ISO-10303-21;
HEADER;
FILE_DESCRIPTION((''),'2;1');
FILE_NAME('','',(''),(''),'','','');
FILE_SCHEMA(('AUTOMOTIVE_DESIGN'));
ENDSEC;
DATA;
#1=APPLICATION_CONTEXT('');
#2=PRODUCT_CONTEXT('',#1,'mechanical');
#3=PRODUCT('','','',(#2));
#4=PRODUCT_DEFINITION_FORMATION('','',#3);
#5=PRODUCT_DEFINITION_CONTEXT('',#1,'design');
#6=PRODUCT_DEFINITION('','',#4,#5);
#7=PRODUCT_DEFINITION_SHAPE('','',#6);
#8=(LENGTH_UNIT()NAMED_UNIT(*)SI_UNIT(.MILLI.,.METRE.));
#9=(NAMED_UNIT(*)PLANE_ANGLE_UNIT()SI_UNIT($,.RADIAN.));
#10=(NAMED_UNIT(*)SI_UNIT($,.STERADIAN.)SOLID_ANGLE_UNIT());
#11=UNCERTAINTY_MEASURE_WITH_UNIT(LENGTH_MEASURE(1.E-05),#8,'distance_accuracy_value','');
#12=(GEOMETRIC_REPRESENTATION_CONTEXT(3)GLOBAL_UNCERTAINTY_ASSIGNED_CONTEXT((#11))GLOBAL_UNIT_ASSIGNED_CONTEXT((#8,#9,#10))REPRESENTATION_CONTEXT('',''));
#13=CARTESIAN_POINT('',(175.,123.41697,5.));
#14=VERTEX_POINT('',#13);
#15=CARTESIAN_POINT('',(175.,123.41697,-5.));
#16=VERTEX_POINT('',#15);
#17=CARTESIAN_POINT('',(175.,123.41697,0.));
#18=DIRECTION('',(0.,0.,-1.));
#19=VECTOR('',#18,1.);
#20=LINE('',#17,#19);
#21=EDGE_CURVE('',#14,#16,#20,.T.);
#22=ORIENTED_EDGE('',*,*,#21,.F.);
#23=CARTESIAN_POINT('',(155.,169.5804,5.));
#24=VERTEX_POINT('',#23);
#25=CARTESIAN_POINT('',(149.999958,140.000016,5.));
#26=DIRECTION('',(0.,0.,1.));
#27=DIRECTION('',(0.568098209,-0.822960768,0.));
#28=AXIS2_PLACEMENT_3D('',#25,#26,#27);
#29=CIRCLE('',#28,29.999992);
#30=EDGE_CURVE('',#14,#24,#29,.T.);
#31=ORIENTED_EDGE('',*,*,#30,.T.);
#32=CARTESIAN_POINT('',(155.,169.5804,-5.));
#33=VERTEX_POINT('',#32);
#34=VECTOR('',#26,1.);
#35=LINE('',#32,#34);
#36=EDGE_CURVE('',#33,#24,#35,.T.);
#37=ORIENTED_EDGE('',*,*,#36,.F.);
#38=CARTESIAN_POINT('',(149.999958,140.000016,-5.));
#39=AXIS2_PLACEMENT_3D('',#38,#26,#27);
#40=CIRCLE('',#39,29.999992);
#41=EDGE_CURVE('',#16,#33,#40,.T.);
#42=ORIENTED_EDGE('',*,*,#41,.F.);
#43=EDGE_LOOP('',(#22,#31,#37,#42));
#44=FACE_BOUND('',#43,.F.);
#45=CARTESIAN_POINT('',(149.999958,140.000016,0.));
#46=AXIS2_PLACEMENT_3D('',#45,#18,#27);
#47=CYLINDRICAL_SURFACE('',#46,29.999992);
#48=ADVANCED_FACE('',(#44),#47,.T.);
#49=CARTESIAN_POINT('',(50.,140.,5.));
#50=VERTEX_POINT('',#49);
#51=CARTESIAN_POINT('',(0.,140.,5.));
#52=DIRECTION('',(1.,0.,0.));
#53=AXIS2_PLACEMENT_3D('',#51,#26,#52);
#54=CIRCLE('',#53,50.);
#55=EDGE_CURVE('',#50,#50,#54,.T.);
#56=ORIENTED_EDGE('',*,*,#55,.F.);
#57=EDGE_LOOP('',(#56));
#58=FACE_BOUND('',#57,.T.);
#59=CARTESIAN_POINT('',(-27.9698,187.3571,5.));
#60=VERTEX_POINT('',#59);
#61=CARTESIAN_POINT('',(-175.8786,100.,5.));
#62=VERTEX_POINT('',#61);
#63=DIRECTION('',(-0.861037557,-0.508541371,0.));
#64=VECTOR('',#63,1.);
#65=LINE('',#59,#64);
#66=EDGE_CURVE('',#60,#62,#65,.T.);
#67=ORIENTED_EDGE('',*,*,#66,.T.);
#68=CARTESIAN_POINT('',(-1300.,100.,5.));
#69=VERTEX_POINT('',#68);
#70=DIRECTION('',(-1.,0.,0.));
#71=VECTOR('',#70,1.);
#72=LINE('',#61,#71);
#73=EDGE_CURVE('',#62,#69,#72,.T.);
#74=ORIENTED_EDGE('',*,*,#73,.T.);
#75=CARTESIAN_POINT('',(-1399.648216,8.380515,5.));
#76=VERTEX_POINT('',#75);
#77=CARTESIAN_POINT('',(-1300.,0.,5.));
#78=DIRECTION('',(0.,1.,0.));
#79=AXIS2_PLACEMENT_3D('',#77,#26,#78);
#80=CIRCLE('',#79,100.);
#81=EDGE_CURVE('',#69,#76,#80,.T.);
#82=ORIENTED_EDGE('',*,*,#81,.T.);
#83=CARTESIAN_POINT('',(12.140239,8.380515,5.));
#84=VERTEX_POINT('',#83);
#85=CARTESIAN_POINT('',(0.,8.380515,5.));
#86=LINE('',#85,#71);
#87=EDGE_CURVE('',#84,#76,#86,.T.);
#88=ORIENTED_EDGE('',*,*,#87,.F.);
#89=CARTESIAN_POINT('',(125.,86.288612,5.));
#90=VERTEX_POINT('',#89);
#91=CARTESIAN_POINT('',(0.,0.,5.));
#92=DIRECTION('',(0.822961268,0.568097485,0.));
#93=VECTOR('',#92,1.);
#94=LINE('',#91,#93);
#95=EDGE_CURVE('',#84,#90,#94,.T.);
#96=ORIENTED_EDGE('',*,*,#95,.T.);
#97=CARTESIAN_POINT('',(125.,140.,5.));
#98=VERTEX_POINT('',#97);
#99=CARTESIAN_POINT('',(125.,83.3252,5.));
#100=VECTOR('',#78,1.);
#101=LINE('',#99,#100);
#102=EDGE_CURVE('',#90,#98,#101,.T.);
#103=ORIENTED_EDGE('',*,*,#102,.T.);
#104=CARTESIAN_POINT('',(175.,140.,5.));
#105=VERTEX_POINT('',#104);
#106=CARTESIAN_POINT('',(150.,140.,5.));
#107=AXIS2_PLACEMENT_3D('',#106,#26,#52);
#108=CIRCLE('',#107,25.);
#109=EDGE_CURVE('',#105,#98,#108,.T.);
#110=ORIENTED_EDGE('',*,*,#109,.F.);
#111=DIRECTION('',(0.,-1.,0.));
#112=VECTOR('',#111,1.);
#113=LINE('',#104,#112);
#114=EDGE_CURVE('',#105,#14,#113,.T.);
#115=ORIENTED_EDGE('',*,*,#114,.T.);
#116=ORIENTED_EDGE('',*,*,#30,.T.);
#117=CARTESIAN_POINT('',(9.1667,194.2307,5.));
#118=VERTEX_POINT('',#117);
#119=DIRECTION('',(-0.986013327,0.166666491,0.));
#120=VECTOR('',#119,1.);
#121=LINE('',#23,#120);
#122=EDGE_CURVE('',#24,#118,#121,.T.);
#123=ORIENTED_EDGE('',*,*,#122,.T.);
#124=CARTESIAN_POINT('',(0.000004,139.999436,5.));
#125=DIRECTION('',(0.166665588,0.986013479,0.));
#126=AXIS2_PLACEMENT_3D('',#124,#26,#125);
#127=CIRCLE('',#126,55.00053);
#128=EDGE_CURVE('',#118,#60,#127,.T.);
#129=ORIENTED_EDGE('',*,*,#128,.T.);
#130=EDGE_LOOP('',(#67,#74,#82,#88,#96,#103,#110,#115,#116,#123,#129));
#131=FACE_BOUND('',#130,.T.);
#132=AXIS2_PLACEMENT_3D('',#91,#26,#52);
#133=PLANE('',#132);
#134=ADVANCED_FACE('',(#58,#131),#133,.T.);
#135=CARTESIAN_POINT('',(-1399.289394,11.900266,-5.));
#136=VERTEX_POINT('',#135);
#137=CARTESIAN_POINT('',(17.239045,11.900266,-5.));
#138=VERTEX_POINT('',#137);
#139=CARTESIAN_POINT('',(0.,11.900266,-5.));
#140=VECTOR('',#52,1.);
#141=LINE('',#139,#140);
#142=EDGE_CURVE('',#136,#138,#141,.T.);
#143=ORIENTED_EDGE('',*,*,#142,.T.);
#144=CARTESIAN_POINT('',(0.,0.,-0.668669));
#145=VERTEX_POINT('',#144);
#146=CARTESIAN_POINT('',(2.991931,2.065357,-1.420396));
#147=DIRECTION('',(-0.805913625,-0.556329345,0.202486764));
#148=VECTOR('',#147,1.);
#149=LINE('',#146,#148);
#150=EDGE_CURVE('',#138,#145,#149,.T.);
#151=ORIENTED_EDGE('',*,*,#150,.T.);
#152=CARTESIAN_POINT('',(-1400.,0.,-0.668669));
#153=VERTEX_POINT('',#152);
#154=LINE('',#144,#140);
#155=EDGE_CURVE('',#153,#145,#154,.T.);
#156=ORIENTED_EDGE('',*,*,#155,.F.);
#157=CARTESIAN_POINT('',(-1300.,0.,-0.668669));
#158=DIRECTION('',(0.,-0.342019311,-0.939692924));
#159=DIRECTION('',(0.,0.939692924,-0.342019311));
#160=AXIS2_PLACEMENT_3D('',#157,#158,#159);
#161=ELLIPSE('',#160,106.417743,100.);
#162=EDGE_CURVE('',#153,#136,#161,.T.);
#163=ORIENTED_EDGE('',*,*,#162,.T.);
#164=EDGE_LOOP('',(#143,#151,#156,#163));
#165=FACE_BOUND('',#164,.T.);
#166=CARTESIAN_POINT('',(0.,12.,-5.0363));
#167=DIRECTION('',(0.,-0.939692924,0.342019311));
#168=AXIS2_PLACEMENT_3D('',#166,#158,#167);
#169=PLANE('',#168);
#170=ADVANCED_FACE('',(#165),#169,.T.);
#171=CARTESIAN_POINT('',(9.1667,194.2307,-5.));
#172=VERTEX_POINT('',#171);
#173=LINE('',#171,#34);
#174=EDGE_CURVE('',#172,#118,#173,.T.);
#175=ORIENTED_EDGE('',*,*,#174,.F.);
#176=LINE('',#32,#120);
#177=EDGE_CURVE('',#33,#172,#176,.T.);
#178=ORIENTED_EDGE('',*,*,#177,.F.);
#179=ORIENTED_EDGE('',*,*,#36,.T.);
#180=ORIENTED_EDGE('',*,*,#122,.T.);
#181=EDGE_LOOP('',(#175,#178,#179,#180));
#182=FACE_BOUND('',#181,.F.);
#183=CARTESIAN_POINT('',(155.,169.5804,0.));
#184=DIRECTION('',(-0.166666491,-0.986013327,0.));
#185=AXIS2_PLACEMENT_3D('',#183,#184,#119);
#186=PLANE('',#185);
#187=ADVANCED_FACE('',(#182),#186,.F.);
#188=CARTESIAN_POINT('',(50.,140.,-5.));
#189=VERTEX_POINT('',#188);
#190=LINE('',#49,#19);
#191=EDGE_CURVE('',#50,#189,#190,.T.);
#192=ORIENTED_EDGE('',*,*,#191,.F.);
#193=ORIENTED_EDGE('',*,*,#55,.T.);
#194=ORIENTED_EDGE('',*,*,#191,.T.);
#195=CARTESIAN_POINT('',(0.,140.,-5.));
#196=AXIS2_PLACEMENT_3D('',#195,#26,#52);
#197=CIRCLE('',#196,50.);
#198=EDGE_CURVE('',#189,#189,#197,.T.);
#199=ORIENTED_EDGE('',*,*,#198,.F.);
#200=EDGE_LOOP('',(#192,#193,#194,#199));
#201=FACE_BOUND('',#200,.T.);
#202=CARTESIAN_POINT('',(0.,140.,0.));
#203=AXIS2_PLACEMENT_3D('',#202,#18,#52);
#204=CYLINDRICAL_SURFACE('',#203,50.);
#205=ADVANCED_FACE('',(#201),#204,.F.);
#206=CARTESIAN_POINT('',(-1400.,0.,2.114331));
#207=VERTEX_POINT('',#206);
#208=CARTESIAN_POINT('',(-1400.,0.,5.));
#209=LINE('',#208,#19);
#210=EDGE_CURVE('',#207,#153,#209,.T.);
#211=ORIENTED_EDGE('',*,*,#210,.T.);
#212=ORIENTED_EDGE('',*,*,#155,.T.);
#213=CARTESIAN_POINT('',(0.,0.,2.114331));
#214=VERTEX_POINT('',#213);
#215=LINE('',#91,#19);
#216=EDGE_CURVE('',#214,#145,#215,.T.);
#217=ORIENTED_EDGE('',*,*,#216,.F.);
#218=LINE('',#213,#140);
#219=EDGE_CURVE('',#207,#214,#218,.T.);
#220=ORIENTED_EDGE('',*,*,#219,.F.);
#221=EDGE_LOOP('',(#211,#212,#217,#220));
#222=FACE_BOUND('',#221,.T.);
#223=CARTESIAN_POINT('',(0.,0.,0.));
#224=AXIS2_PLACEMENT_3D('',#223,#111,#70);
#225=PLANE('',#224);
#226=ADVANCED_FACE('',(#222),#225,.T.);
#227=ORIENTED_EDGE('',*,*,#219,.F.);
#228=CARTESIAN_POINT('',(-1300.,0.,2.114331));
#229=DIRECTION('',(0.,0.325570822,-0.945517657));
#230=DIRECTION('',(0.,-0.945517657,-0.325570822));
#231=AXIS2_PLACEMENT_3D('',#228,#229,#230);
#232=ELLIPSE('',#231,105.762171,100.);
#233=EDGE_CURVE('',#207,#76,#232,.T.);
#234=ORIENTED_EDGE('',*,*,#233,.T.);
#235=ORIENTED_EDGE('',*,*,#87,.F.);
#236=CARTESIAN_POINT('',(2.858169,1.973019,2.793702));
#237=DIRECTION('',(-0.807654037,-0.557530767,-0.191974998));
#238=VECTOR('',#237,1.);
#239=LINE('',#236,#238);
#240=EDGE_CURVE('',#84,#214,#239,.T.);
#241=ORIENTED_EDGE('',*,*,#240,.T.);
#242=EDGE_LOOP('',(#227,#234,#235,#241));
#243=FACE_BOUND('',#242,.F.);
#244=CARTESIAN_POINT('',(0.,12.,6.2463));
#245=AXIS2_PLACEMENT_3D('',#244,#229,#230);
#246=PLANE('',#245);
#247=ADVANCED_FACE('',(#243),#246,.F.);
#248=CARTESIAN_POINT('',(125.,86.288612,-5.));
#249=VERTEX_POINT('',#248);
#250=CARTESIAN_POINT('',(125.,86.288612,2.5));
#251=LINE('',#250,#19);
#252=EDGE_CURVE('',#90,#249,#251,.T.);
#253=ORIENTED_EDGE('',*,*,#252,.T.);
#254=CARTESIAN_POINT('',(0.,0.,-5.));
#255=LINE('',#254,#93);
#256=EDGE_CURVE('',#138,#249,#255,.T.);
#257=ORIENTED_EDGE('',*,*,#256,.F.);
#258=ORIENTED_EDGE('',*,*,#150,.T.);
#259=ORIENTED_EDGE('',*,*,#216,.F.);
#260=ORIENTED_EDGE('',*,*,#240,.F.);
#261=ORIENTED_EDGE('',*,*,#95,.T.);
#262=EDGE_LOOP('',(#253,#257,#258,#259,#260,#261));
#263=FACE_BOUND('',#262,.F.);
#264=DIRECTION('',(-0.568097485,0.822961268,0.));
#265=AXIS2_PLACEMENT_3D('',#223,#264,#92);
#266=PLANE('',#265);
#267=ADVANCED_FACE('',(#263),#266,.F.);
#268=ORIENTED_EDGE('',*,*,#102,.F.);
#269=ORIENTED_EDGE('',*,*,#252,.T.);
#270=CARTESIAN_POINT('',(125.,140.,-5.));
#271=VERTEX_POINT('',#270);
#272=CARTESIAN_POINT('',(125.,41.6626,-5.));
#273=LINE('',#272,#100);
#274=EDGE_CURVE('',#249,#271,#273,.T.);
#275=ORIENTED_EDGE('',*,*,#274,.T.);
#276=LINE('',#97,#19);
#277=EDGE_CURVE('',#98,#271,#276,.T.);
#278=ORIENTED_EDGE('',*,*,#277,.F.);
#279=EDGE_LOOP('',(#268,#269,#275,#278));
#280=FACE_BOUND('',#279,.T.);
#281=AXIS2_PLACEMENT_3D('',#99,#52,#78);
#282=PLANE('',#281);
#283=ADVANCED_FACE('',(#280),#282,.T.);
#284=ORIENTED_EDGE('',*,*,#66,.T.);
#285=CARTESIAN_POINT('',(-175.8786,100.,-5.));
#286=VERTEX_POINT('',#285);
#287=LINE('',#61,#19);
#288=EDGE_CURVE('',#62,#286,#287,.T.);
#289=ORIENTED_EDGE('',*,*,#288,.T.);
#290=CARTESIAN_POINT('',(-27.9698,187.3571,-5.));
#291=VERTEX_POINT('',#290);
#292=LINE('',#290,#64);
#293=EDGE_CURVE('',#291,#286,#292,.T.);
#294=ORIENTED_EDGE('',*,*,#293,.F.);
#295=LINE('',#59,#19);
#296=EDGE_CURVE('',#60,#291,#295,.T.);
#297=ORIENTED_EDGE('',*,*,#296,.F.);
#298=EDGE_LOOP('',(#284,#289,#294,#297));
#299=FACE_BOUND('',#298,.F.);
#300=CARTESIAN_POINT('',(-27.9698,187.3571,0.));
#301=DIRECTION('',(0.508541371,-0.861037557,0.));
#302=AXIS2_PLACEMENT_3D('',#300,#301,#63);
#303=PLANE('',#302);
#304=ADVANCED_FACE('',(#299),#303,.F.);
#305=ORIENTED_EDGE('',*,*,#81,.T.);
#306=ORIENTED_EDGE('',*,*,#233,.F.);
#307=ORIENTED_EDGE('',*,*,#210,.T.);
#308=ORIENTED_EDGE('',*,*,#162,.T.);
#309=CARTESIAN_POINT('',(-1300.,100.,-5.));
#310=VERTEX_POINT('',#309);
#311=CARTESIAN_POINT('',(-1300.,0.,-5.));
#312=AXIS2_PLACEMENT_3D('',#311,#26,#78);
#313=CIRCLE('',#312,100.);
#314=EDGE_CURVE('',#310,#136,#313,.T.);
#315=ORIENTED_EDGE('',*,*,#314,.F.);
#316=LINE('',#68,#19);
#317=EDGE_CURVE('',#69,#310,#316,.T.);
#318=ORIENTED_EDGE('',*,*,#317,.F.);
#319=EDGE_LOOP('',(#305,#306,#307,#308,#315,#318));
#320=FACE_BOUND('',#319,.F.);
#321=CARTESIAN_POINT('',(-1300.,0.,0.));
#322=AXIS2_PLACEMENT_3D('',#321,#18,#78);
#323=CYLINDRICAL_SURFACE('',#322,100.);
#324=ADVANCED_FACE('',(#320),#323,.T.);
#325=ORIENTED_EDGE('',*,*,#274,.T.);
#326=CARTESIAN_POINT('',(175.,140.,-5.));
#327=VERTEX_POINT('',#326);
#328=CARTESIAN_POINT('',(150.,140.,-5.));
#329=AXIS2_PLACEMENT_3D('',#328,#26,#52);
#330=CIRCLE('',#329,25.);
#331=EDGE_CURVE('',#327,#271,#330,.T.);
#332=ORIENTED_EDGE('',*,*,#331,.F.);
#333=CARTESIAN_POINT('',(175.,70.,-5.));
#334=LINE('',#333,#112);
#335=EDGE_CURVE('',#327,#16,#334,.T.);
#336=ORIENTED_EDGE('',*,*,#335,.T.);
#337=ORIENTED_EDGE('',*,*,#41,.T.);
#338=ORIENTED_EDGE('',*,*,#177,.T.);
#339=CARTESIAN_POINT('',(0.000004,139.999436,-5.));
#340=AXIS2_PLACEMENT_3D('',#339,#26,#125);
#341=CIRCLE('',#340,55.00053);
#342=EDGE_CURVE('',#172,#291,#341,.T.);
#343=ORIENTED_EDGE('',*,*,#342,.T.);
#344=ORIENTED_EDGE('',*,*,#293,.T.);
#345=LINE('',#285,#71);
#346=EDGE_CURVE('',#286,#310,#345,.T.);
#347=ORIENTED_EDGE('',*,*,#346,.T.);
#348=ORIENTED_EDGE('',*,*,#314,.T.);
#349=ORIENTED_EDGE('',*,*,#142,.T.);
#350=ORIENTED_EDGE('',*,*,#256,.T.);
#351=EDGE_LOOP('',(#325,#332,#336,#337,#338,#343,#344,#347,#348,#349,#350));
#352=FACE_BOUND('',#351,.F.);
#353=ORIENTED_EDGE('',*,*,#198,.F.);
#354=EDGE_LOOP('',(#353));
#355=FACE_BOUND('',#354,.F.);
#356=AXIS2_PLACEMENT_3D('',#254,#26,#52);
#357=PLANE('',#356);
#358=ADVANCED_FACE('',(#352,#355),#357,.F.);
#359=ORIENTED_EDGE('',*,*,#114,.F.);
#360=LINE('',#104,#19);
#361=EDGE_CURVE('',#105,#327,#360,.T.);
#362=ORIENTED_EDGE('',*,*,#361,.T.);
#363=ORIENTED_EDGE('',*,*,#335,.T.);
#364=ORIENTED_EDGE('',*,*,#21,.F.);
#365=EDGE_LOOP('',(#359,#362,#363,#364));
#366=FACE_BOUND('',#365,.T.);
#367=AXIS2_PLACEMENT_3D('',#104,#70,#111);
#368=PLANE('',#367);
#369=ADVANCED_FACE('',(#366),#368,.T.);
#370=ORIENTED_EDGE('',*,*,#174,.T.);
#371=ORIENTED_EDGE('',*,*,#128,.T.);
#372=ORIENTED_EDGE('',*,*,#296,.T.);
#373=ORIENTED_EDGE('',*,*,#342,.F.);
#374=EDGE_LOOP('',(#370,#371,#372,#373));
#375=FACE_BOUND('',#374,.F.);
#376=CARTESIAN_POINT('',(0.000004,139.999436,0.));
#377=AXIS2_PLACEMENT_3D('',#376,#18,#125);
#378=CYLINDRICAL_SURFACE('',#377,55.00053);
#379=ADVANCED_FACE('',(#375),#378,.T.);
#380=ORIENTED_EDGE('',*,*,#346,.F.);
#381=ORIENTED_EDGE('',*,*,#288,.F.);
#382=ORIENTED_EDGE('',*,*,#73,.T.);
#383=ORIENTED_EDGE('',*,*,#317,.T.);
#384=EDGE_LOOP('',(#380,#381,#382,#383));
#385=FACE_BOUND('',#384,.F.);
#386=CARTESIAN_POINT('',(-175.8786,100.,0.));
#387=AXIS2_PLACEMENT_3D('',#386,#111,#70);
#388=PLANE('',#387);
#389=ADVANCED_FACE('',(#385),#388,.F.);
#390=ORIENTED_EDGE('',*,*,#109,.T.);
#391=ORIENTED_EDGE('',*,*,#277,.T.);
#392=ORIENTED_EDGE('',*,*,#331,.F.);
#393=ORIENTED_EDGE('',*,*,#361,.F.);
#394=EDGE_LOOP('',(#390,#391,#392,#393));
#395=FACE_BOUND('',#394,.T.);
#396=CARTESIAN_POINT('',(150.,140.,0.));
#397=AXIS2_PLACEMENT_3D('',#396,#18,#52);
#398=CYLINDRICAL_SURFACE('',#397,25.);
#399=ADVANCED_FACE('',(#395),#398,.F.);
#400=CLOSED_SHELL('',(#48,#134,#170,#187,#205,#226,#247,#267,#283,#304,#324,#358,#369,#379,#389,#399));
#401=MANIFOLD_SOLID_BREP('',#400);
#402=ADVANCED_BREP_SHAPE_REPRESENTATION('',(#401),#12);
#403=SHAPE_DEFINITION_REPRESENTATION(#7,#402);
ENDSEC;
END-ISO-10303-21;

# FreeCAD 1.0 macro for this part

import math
import FreeCAD as App
import Part
import Sketcher
from FreeCAD import Vector
Q = App.Units.Quantity


def add_polygon(sketch, points):
    """Adds a closed chain of lines whose ends are joined by coincident constraints."""
    first, n = sketch.GeometryCount, len(points)
    for a, b in zip(points, points[1:] + points[:1]):
        sketch.addGeometry(Part.LineSegment(App.Vector(*a, 0), App.Vector(*b, 0)), False)
    for i in range(n):
        sketch.addConstraint(Sketcher.Constraint("Coincident", first + i, 2, first + (i + 1) % n, 1))

doc = App.newDocument("Part")
body = doc.addObject("PartDesign::Body", "Body")

# Sketch on XY plane
sketch1 = doc.addObject("Sketcher::SketchObject", "Sketch")
body.addObject(sketch1)
sketch1.AttachmentSupport = (doc.XY_Plane, [""])
sketch1.MapMode = "FlatFace"
sketch1.addGeometry(Part.LineSegment(Vector(0, 0, 0), Vector(167, 115, 0)), False)
sketch1.addGeometry(Part.ArcOfCircle(Part.Circle(Vector(150, 140, 0), Vector(0, 0, 1), 30), math.radians(-55), math.radians(80)), False)
sketch1.addGeometry(Part.LineSegment(Vector(155, 170, 0), Vector(9, 194, 0)), False)
sketch1.addGeometry(Part.ArcOfCircle(Part.Circle(Vector(0, 140, 0), Vector(0, 0, 1), 55), math.radians(80), math.radians(121)), False)
sketch1.addGeometry(Part.LineSegment(Vector(-28, 187, 0), Vector(-176, 100, 0)), False)
sketch1.addGeometry(Part.LineSegment(Vector(-176, 100, 0), Vector(-1300, 100, 0)), False)
sketch1.addGeometry(Part.ArcOfCircle(Part.Circle(Vector(-1300, 0, 0), Vector(0, 0, 1), 100), math.radians(90), math.radians(180)), False)
sketch1.addGeometry(Part.LineSegment(Vector(-1400, 0, 0), Vector(0, 0, 0)), False)
sketch1.addGeometry(Part.Circle(Vector(0, 140, 0), Vector(0, 0, 1), 50), False)
sketch1.addGeometry(Part.Circle(Vector(150, 140, 0), Vector(0, 0, 1), 25), False)
sketch1.addConstraint(Sketcher.Constraint("Tangent", 0, 2, 1, 1))
sketch1.addConstraint(Sketcher.Constraint("Tangent", 1, 2, 2, 1))
sketch1.addConstraint(Sketcher.Constraint("Tangent", 2, 2, 3, 1))
sketch1.addConstraint(Sketcher.Constraint("Tangent", 3, 2, 4, 1))
sketch1.addConstraint(Sketcher.Constraint("Coincident", 4, 2, 5, 1))
sketch1.addConstraint(Sketcher.Constraint("Tangent", 5, 2, 6, 1))
sketch1.addConstraint(Sketcher.Constraint("Coincident", 6, 2, 7, 1))
sketch1.addConstraint(Sketcher.Constraint("Coincident", 7, 2, 0, 1))
sketch1.addConstraint(Sketcher.Constraint("Horizontal", 5))
sketch1.addConstraint(Sketcher.Constraint("Horizontal", 7))
sketch1.addConstraint(Sketcher.Constraint("Coincident", 7, 2, -1, 1))
sketch1.addConstraint(Sketcher.Constraint("Coincident", 8, 3, 3, 3))
sketch1.addConstraint(Sketcher.Constraint("Coincident", 9, 3, 1, 3))
sketch1.addConstraint(Sketcher.Constraint("PointOnObject", 3, 3, -2))
sketch1.addConstraint(Sketcher.Constraint("PointOnObject", 6, 3, -1))
sketch1.addConstraint(Sketcher.Constraint("Horizontal", 1, 3, 3, 3))
sketch1.addConstraint(Sketcher.Constraint("Diameter", 8, 100.0))
sketch1.addConstraint(Sketcher.Constraint("Diameter", 9, 50.0))
sketch1.addConstraint(Sketcher.Constraint("Radius", 6, 100.0))
sketch1.addConstraint(Sketcher.Constraint("DistanceX", 7, 1, 7, 2, 1400.0))
sketch1.addConstraint(Sketcher.Constraint("DistanceX", -1, 1, 1, 3, 150.0))
sketch1.addConstraint(Sketcher.Constraint("DistanceY", -1, 1, 1, 3, 140.0))
sketch1.addConstraint(Sketcher.Constraint("Radius", 1, 30.0))
sketch1.addConstraint(Sketcher.Constraint("Radius", 3, 55.0))
sketch1.addConstraint(Sketcher.Constraint("Distance", 4, 171.7797))
pad1 = doc.addObject("PartDesign::Pad", "Pad")
body.addObject(pad1)
pad1.Profile = sketch1
pad1.Length = 10
pad1.Midplane = True

# Sketch on YZ plane
sketch2 = doc.addObject("Sketcher::SketchObject", "Sketch001")
body.addObject(sketch2)
sketch2.AttachmentSupport = (doc.YZ_Plane, [""])
sketch2.MapMode = "FlatFace"
add_polygon(sketch2, [(-1, -5), (12, -5), (-1, -0.3)])  # lines 0-2
add_polygon(sketch2, [(-1, 1.8), (12, 6.2), (-1, 6.2)])  # lines 3-5
sketch2.addConstraint(Sketcher.Constraint("Horizontal", 0))
sketch2.addConstraint(Sketcher.Constraint("Vertical", 2))
sketch2.addConstraint(Sketcher.Constraint("Horizontal", 4))
sketch2.addConstraint(Sketcher.Constraint("Vertical", 5))
sketch2.addConstraint(Sketcher.Constraint("Vertical", 0, 2, 3, 2))
sketch2.addConstraint(Sketcher.Constraint("Vertical", 2, 2, 4, 2))
sketch2.addConstraint(Sketcher.Constraint("DistanceX", 0, 1, 0, 2, 13.0))
sketch2.addConstraint(Sketcher.Constraint("DistanceX", 1, 2, -1, 1, 1.0))
sketch2.addConstraint(Sketcher.Constraint("DistanceY", -1, 1, 5, 2, 1.77))
sketch2.addConstraint(Sketcher.Constraint("Angle", 1, Q("160 deg")))
sketch2.addConstraint(Sketcher.Constraint("Angle", 3, Q("19.0002 deg")))
sketch2.addConstraint(Sketcher.Constraint("DistanceY", 1, 2, -1, 1, 0.3047))
pocket1 = doc.addObject("PartDesign::Pocket", "Pocket")
body.addObject(pocket1)
pocket1.Profile = sketch2
pocket1.Type = "ThroughAll"
pocket1.Midplane = True

# Sketch on XY plane
sketch3 = doc.addObject("Sketcher::SketchObject", "Sketch002")
body.addObject(sketch3)
sketch3.AttachmentSupport = (doc.XY_Plane, [""])
sketch3.MapMode = "FlatFace"
sketch3.AttachmentOffset = App.Placement(Vector(0, 0, 5), App.Rotation())
add_polygon(sketch3, [(175, 140), (125, 140), (125, 83), (175, 83)])  # lines 0-3
sketch3.addConstraint(Sketcher.Constraint("Horizontal", 0))
sketch3.addConstraint(Sketcher.Constraint("Vertical", 1))
sketch3.addConstraint(Sketcher.Constraint("Horizontal", 2))
sketch3.addConstraint(Sketcher.Constraint("Vertical", 3))
sketch3.addConstraint(Sketcher.Constraint("DistanceX", 0, 2, 0, 1, 50.0))
sketch3.addConstraint(Sketcher.Constraint("DistanceY", 1, 2, 1, 1, 56.6748))
sketch3.addConstraint(Sketcher.Constraint("DistanceX", -1, 1, 0, 2, 125.0))
sketch3.addConstraint(Sketcher.Constraint("DistanceY", -1, 1, 0, 2, 140.0))
pocket2 = doc.addObject("PartDesign::Pocket", "Pocket001")
body.addObject(pocket2)
pocket2.Profile = sketch3
pocket2.Type = "ThroughAll"

doc.recompute()
